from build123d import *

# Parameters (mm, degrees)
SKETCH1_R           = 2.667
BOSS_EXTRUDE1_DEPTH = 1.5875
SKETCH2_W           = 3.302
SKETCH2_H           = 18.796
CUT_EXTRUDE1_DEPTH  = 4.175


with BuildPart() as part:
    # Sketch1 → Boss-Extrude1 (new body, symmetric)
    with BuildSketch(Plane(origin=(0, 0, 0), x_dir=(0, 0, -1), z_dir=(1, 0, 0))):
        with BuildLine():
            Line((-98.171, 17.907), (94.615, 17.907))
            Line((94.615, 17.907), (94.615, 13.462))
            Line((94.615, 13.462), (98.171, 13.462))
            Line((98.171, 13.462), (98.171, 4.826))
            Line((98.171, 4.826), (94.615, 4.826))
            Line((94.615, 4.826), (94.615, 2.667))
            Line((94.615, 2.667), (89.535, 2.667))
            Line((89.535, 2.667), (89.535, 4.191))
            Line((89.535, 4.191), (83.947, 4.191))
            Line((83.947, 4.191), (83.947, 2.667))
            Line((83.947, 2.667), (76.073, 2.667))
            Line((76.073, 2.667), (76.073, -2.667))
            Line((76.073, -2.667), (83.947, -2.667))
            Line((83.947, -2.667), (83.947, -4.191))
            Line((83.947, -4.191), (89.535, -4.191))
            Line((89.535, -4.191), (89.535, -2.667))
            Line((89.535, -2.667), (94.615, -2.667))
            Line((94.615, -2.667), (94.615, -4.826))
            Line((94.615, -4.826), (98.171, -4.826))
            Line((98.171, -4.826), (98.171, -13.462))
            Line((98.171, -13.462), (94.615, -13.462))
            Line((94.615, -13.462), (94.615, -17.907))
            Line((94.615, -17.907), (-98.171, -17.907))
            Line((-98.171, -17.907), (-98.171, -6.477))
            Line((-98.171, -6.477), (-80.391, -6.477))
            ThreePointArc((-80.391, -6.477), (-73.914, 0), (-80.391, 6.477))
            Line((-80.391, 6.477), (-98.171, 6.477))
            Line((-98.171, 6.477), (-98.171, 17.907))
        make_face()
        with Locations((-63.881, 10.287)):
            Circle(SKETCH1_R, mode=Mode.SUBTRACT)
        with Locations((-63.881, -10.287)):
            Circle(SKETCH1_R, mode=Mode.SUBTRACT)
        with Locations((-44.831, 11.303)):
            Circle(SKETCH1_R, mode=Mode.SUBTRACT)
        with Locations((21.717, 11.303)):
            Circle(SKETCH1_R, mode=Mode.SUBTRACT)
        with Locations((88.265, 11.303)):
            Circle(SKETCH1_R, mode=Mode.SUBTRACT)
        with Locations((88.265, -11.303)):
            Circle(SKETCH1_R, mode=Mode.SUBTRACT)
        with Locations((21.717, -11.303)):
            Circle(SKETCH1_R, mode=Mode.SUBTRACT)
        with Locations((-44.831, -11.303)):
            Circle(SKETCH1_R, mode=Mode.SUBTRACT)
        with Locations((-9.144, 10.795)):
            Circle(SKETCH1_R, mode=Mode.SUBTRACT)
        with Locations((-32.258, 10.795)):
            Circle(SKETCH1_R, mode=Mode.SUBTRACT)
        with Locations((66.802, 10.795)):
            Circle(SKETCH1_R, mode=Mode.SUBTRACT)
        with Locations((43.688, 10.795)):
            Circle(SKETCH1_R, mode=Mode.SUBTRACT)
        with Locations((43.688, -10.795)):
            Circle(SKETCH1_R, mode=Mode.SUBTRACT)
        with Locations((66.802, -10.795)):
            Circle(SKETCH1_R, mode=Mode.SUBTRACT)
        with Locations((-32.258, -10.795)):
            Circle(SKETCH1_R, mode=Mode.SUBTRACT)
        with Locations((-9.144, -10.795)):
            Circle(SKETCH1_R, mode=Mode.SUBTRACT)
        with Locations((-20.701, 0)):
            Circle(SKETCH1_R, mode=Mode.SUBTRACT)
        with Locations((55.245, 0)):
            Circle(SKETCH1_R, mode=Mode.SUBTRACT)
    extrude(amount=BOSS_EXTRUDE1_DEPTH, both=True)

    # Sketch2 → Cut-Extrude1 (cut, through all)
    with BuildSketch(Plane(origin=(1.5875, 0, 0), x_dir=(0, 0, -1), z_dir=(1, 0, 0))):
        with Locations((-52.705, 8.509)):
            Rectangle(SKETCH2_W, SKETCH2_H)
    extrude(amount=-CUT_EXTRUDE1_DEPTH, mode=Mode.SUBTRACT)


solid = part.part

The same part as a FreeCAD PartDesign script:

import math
import FreeCAD as App
import Part
import Sketcher
Q = App.Units.Quantity

doc = App.newDocument("Part")
body = doc.addObject("PartDesign::Body", "Body")

# Sketch on YZ plane
sketch1 = body.newObject("Sketcher::SketchObject", "Sketch")
sketch1.AttachmentSupport = (doc.getObject("YZ_Plane"), [""])
sketch1.MapMode = "FlatFace"
sketch1.addGeometry(Part.LineSegment(App.Vector(17.9, -94.6, 0), App.Vector(17.9, 98.2, 0)), False)
sketch1.addGeometry(Part.LineSegment(App.Vector(17.9, 98.2, 0), App.Vector(6.5, 98.2, 0)), False)
sketch1.addGeometry(Part.LineSegment(App.Vector(6.5, 98.2, 0), App.Vector(6.5, 80.4, 0)), False)
sketch1.addGeometry(Part.ArcOfCircle(Part.Circle(App.Vector(0, 80.4, 0), App.Vector(0, 0, 1), 6.5), math.radians(180), math.radians(360)), False)
sketch1.addGeometry(Part.LineSegment(App.Vector(-6.5, 80.4, 0), App.Vector(-6.5, 98.2, 0)), False)
sketch1.addGeometry(Part.LineSegment(App.Vector(-6.5, 98.2, 0), App.Vector(-17.9, 98.2, 0)), False)
sketch1.addGeometry(Part.LineSegment(App.Vector(-17.9, 98.2, 0), App.Vector(-17.9, -94.6, 0)), False)
sketch1.addGeometry(Part.LineSegment(App.Vector(-17.9, -94.6, 0), App.Vector(-13.5, -94.6, 0)), False)
sketch1.addGeometry(Part.LineSegment(App.Vector(-13.5, -94.6, 0), App.Vector(-13.5, -98.2, 0)), False)
sketch1.addGeometry(Part.LineSegment(App.Vector(-13.5, -98.2, 0), App.Vector(-4.8, -98.2, 0)), False)
sketch1.addGeometry(Part.LineSegment(App.Vector(-4.8, -98.2, 0), App.Vector(-4.8, -94.6, 0)), False)
sketch1.addGeometry(Part.LineSegment(App.Vector(-4.8, -94.6, 0), App.Vector(-2.7, -94.6, 0)), False)
sketch1.addGeometry(Part.LineSegment(App.Vector(-2.7, -94.6, 0), App.Vector(-2.7, -89.5, 0)), False)
sketch1.addGeometry(Part.LineSegment(App.Vector(-2.7, -89.5, 0), App.Vector(-4.2, -89.5, 0)), False)
sketch1.addGeometry(Part.LineSegment(App.Vector(-4.2, -89.5, 0), App.Vector(-4.2, -83.9, 0)), False)
sketch1.addGeometry(Part.LineSegment(App.Vector(-4.2, -83.9, 0), App.Vector(-2.7, -83.9, 0)), False)
sketch1.addGeometry(Part.LineSegment(App.Vector(-2.7, -83.9, 0), App.Vector(-2.7, -76.1, 0)), False)
sketch1.addGeometry(Part.LineSegment(App.Vector(-2.7, -76.1, 0), App.Vector(2.7, -76.1, 0)), False)
sketch1.addGeometry(Part.LineSegment(App.Vector(2.7, -76.1, 0), App.Vector(2.7, -83.9, 0)), False)
sketch1.addGeometry(Part.LineSegment(App.Vector(2.7, -83.9, 0), App.Vector(4.2, -83.9, 0)), False)
sketch1.addGeometry(Part.LineSegment(App.Vector(4.2, -83.9, 0), App.Vector(4.2, -89.5, 0)), False)
sketch1.addGeometry(Part.LineSegment(App.Vector(4.2, -89.5, 0), App.Vector(2.7, -89.5, 0)), False)
sketch1.addGeometry(Part.LineSegment(App.Vector(2.7, -89.5, 0), App.Vector(2.7, -94.6, 0)), False)
sketch1.addGeometry(Part.LineSegment(App.Vector(2.7, -94.6, 0), App.Vector(4.8, -94.6, 0)), False)
sketch1.addGeometry(Part.LineSegment(App.Vector(4.8, -94.6, 0), App.Vector(4.8, -98.2, 0)), False)
sketch1.addGeometry(Part.LineSegment(App.Vector(4.8, -98.2, 0), App.Vector(13.5, -98.2, 0)), False)
sketch1.addGeometry(Part.LineSegment(App.Vector(13.5, -98.2, 0), App.Vector(13.5, -94.6, 0)), False)
sketch1.addGeometry(Part.LineSegment(App.Vector(13.5, -94.6, 0), App.Vector(17.9, -94.6, 0)), False)
sketch1.addGeometry(Part.Circle(App.Vector(-11.3, -88.3, 0), App.Vector(0, 0, 1), 2.7), False)
sketch1.addGeometry(Part.Circle(App.Vector(-10.8, -66.8, 0), App.Vector(0, 0, 1), 2.7), False)
sketch1.addGeometry(Part.Circle(App.Vector(-10.8, -43.7, 0), App.Vector(0, 0, 1), 2.7), False)
sketch1.addGeometry(Part.Circle(App.Vector(-11.3, -21.7, 0), App.Vector(0, 0, 1), 2.7), False)
sketch1.addGeometry(Part.Circle(App.Vector(-10.8, 9.1, 0), App.Vector(0, 0, 1), 2.7), False)
sketch1.addGeometry(Part.Circle(App.Vector(-10.8, 32.3, 0), App.Vector(0, 0, 1), 2.7), False)
sketch1.addGeometry(Part.Circle(App.Vector(-11.3, 44.8, 0), App.Vector(0, 0, 1), 2.7), False)
sketch1.addGeometry(Part.Circle(App.Vector(-10.3, 63.9, 0), App.Vector(0, 0, 1), 2.7), False)
sketch1.addGeometry(Part.Circle(App.Vector(0, -55.2, 0), App.Vector(0, 0, 1), 2.7), False)
sketch1.addGeometry(Part.Circle(App.Vector(11.3, -88.3, 0), App.Vector(0, 0, 1), 2.7), False)
sketch1.addGeometry(Part.Circle(App.Vector(10.8, -66.8, 0), App.Vector(0, 0, 1), 2.7), False)
sketch1.addGeometry(Part.Circle(App.Vector(10.8, -43.7, 0), App.Vector(0, 0, 1), 2.7), False)
sketch1.addGeometry(Part.Circle(App.Vector(11.3, -21.7, 0), App.Vector(0, 0, 1), 2.7), False)
sketch1.addGeometry(Part.Circle(App.Vector(0, 20.7, 0), App.Vector(0, 0, 1), 2.7), False)
sketch1.addGeometry(Part.Circle(App.Vector(10.8, 9.1, 0), App.Vector(0, 0, 1), 2.7), False)
sketch1.addGeometry(Part.Circle(App.Vector(10.3, 63.9, 0), App.Vector(0, 0, 1), 2.7), False)
sketch1.addGeometry(Part.Circle(App.Vector(10.8, 32.3, 0), App.Vector(0, 0, 1), 2.7), False)
sketch1.addGeometry(Part.Circle(App.Vector(11.3, 44.8, 0), App.Vector(0, 0, 1), 2.7), False)
sketch1.addConstraint(Sketcher.Constraint("Coincident", 0, 2, 1, 1))
sketch1.addConstraint(Sketcher.Constraint("Coincident", 1, 2, 2, 1))
sketch1.addConstraint(Sketcher.Constraint("Tangent", 2, 2, 3, 2))
sketch1.addConstraint(Sketcher.Constraint("Tangent", 3, 1, 4, 1))
sketch1.addConstraint(Sketcher.Constraint("Coincident", 4, 2, 5, 1))
sketch1.addConstraint(Sketcher.Constraint("Coincident", 5, 2, 6, 1))
sketch1.addConstraint(Sketcher.Constraint("Coincident", 6, 2, 7, 1))
sketch1.addConstraint(Sketcher.Constraint("Coincident", 7, 2, 8, 1))
sketch1.addConstraint(Sketcher.Constraint("Coincident", 8, 2, 9, 1))
sketch1.addConstraint(Sketcher.Constraint("Coincident", 9, 2, 10, 1))
sketch1.addConstraint(Sketcher.Constraint("Coincident", 10, 2, 11, 1))
sketch1.addConstraint(Sketcher.Constraint("Coincident", 11, 2, 12, 1))
sketch1.addConstraint(Sketcher.Constraint("Coincident", 12, 2, 13, 1))
sketch1.addConstraint(Sketcher.Constraint("Coincident", 13, 2, 14, 1))
sketch1.addConstraint(Sketcher.Constraint("Coincident", 14, 2, 15, 1))
sketch1.addConstraint(Sketcher.Constraint("Coincident", 15, 2, 16, 1))
sketch1.addConstraint(Sketcher.Constraint("Coincident", 16, 2, 17, 1))
sketch1.addConstraint(Sketcher.Constraint("Coincident", 17, 2, 18, 1))
sketch1.addConstraint(Sketcher.Constraint("Coincident", 18, 2, 19, 1))
sketch1.addConstraint(Sketcher.Constraint("Coincident", 19, 2, 20, 1))
sketch1.addConstraint(Sketcher.Constraint("Coincident", 20, 2, 21, 1))
sketch1.addConstraint(Sketcher.Constraint("Coincident", 21, 2, 22, 1))
sketch1.addConstraint(Sketcher.Constraint("Coincident", 22, 2, 23, 1))
sketch1.addConstraint(Sketcher.Constraint("Coincident", 23, 2, 24, 1))
sketch1.addConstraint(Sketcher.Constraint("Coincident", 24, 2, 25, 1))
sketch1.addConstraint(Sketcher.Constraint("Coincident", 25, 2, 26, 1))
sketch1.addConstraint(Sketcher.Constraint("Coincident", 26, 2, 27, 1))
sketch1.addConstraint(Sketcher.Constraint("Coincident", 27, 2, 0, 1))
sketch1.addConstraint(Sketcher.Constraint("Vertical", 0))
sketch1.addConstraint(Sketcher.Constraint("Horizontal", 1))
sketch1.addConstraint(Sketcher.Constraint("Vertical", 2))
sketch1.addConstraint(Sketcher.Constraint("Vertical", 4))
sketch1.addConstraint(Sketcher.Constraint("Horizontal", 5))
sketch1.addConstraint(Sketcher.Constraint("Vertical", 6))
sketch1.addConstraint(Sketcher.Constraint("Horizontal", 7))
sketch1.addConstraint(Sketcher.Constraint("Vertical", 8))
sketch1.addConstraint(Sketcher.Constraint("Horizontal", 9))
sketch1.addConstraint(Sketcher.Constraint("Vertical", 10))
sketch1.addConstraint(Sketcher.Constraint("Horizontal", 11))
sketch1.addConstraint(Sketcher.Constraint("Vertical", 12))
sketch1.addConstraint(Sketcher.Constraint("Horizontal", 13))
sketch1.addConstraint(Sketcher.Constraint("Vertical", 14))
sketch1.addConstraint(Sketcher.Constraint("Horizontal", 15))
sketch1.addConstraint(Sketcher.Constraint("Vertical", 16))
sketch1.addConstraint(Sketcher.Constraint("Horizontal", 17))
sketch1.addConstraint(Sketcher.Constraint("Vertical", 18))
sketch1.addConstraint(Sketcher.Constraint("Horizontal", 19))
sketch1.addConstraint(Sketcher.Constraint("Vertical", 20))
sketch1.addConstraint(Sketcher.Constraint("Horizontal", 21))
sketch1.addConstraint(Sketcher.Constraint("Vertical", 22))
sketch1.addConstraint(Sketcher.Constraint("Horizontal", 23))
sketch1.addConstraint(Sketcher.Constraint("Vertical", 24))
sketch1.addConstraint(Sketcher.Constraint("Horizontal", 25))
sketch1.addConstraint(Sketcher.Constraint("Vertical", 26))
sketch1.addConstraint(Sketcher.Constraint("Horizontal", 27))
sketch1.addConstraint(Sketcher.Constraint("Equal", 28, 29))
sketch1.addConstraint(Sketcher.Constraint("Equal", 29, 30))
sketch1.addConstraint(Sketcher.Constraint("Equal", 30, 31))
sketch1.addConstraint(Sketcher.Constraint("Equal", 31, 32))
sketch1.addConstraint(Sketcher.Constraint("Equal", 32, 33))
sketch1.addConstraint(Sketcher.Constraint("Equal", 33, 34))
sketch1.addConstraint(Sketcher.Constraint("Equal", 34, 35))
sketch1.addConstraint(Sketcher.Constraint("Equal", 35, 36))
sketch1.addConstraint(Sketcher.Constraint("Equal", 36, 37))
sketch1.addConstraint(Sketcher.Constraint("Equal", 37, 38))
sketch1.addConstraint(Sketcher.Constraint("Equal", 38, 39))
sketch1.addConstraint(Sketcher.Constraint("Equal", 39, 40))
sketch1.addConstraint(Sketcher.Constraint("Equal", 40, 41))
sketch1.addConstraint(Sketcher.Constraint("Equal", 41, 42))
sketch1.addConstraint(Sketcher.Constraint("Equal", 42, 43))
sketch1.addConstraint(Sketcher.Constraint("Equal", 43, 44))
sketch1.addConstraint(Sketcher.Constraint("Equal", 44, 45))
sketch1.addConstraint(Sketcher.Constraint("Symmetric", 28, 3, 37, 3, -2))
sketch1.addConstraint(Sketcher.Constraint("Symmetric", 29, 3, 38, 3, -2))
sketch1.addConstraint(Sketcher.Constraint("Symmetric", 30, 3, 39, 3, -2))
sketch1.addConstraint(Sketcher.Constraint("Symmetric", 31, 3, 40, 3, -2))
sketch1.addConstraint(Sketcher.Constraint("Symmetric", 32, 3, 42, 3, -2))
sketch1.addConstraint(Sketcher.Constraint("Symmetric", 35, 3, 43, 3, -2))
sketch1.addConstraint(Sketcher.Constraint("Symmetric", 33, 3, 44, 3, -2))
sketch1.addConstraint(Sketcher.Constraint("Symmetric", 34, 3, 45, 3, -2))
sketch1.addConstraint(Sketcher.Constraint("Symmetric", 1, 2, 4, 2, -2))
sketch1.addConstraint(Sketcher.Constraint("Symmetric", 15, 2, 18, 2, -2))
sketch1.addConstraint(Sketcher.Constraint("Symmetric", 13, 2, 20, 2, -2))
sketch1.addConstraint(Sketcher.Constraint("Symmetric", 11, 2, 22, 2, -2))
sketch1.addConstraint(Sketcher.Constraint("Symmetric", 9, 2, 24, 2, -2))
sketch1.addConstraint(Sketcher.Constraint("Symmetric", 7, 2, 26, 2, -2))
sketch1.addConstraint(Sketcher.Constraint("PointOnObject", 36, 3, -2))
sketch1.addConstraint(Sketcher.Constraint("PointOnObject", 41, 3, -2))
sketch1.addConstraint(Sketcher.Constraint("Horizontal", 7, 2, 10, 2))
sketch1.addConstraint(Sketcher.Constraint("Vertical", 29, 3, 30, 3))
sketch1.addConstraint(Sketcher.Constraint("Vertical", 28, 3, 31, 3))
sketch1.addConstraint(Sketcher.Constraint("Vertical", 30, 3, 32, 3))
sketch1.addConstraint(Sketcher.Constraint("Vertical", 32, 3, 33, 3))
sketch1.addConstraint(Sketcher.Constraint("Vertical", 31, 3, 34, 3))
sketch1.addConstraint(Sketcher.Constraint("Vertical", 12, 2, 15, 2))
sketch1.addConstraint(Sketcher.Constraint("Equal", 1, 5))
sketch1.addConstraint(Sketcher.Constraint("Diameter", 28, Q("0.21 in")))
sketch1.addConstraint(Sketcher.Constraint("DistanceY", 2, 2, 2, 1, Q("0.7 in")))
sketch1.addConstraint(Sketcher.Constraint("DistanceY", 12, 1, 12, 2, Q("0.2 in")))
sketch1.addConstraint(Sketcher.Constraint("Radius", 3, Q("0.255 in")))
sketch1.addConstraint(Sketcher.Constraint("DistanceX", 1, 2, 1, 1, Q("0.45 in")))
sketch1.addConstraint(Sketcher.Constraint("DistanceX", 9, 1, 9, 2, Q("0.34 in")))
sketch1.addConstraint(Sketcher.Constraint("DistanceX", 13, 2, 13, 1, Q("0.06 in")))
sketch1.addConstraint(Sketcher.Constraint("DistanceX", 17, 1, 17, 2, Q("0.21 in")))
sketch1.addConstraint(Sketcher.Constraint("DistanceY", 0, 1, 0, 2, Q("7.59 in")))
sketch1.addConstraint(Sketcher.Constraint("DistanceY", 8, 2, 8, 1, Q("0.14 in")))
sketch1.addConstraint(Sketcher.Constraint("DistanceY", 14, 1, 14, 2, Q("0.22 in")))
sketch1.addConstraint(Sketcher.Constraint("DistanceY", 16, 1, 16, 2, Q("0.31 in")))
sketch1.addConstraint(Sketcher.Constraint("DistanceY", 29, 3, 33, 3, Q("3.9 in")))
sketch1.addConstraint(Sketcher.Constraint("DistanceY", 34, 3, 3, 3, Q("1.4 in")))
sketch1.addConstraint(Sketcher.Constraint("DistanceY", 28, 3, 36, 3, Q("1.3 in")))
sketch1.addConstraint(Sketcher.Constraint("DistanceY", 41, 3, 43, 3, Q("1.7 in")))
sketch1.addConstraint(Sketcher.Constraint("DistanceX", 43, 3, 0, 2, Q("0.3 in")))
sketch1.addConstraint(Sketcher.Constraint("DistanceX", 7, 1, 7, 2, Q("0.175 in")))
sketch1.addConstraint(Sketcher.Constraint("DistanceY", 29, 3, -1, 1, Q("2.63 in")))
sketch1.addConstraint(Sketcher.Constraint("DistanceY", 30, 3, -1, 1, Q("1.72 in")))
sketch1.addConstraint(Sketcher.Constraint("DistanceY", -1, 1, 32, 3, Q("0.36 in")))
sketch1.addConstraint(Sketcher.Constraint("DistanceY", 28, 3, 3, 3, Q("6.64 in")))
sketch1.addConstraint(Sketcher.Constraint("DistanceX", 28, 3, 29, 3, Q("0.02 in")))
sketch1.addConstraint(Sketcher.Constraint("DistanceY", 28, 3, 31, 3, Q("2.62 in")))
sketch1.addConstraint(Sketcher.Constraint("DistanceX", 34, 3, 35, 3, Q("0.04 in")))
sketch1.addConstraint(Sketcher.Constraint("DistanceY", 34, 3, 35, 3, Q("0.75 in")))
sketch1.addConstraint(Sketcher.Constraint("DistanceY", -1, 1, 3, 3, Q("3.165 in")))
pad1 = body.newObject("PartDesign::Pad", "Pad")
pad1.Profile = sketch1
pad1.Length = Q("0.125 in")
pad1.Midplane = True

# Sketch on YZ plane
sketch2 = body.newObject("Sketcher::SketchObject", "Sketch001")
sketch2.AttachmentSupport = (doc.getObject("YZ_Plane"), [""])
sketch2.MapMode = "FlatFace"
sketch2.AttachmentOffset = App.Placement(App.Vector(0, 0, 0.0625 * 25.4), App.Rotation())
sketch2.addGeometry(Part.LineSegment(App.Vector(17.9, 54.4, 0), App.Vector(-0.9, 54.4, 0)), False)
sketch2.addGeometry(Part.LineSegment(App.Vector(-0.9, 54.4, 0), App.Vector(-0.9, 51.1, 0)), False)
sketch2.addGeometry(Part.LineSegment(App.Vector(-0.9, 51.1, 0), App.Vector(17.9, 51.1, 0)), False)
sketch2.addGeometry(Part.LineSegment(App.Vector(17.9, 51.1, 0), App.Vector(17.9, 54.4, 0)), False)
sketch2.addConstraint(Sketcher.Constraint("Coincident", 0, 2, 1, 1))
sketch2.addConstraint(Sketcher.Constraint("Coincident", 1, 2, 2, 1))
sketch2.addConstraint(Sketcher.Constraint("Coincident", 2, 2, 3, 1))
sketch2.addConstraint(Sketcher.Constraint("Coincident", 3, 2, 0, 1))
sketch2.addConstraint(Sketcher.Constraint("Horizontal", 0))
sketch2.addConstraint(Sketcher.Constraint("Vertical", 1))
sketch2.addConstraint(Sketcher.Constraint("Horizontal", 2))
sketch2.addConstraint(Sketcher.Constraint("Vertical", 3))
sketch2.addConstraint(Sketcher.Constraint("DistanceX", 0, 2, 0, 1, Q("0.74 in")))
sketch2.addConstraint(Sketcher.Constraint("DistanceY", 1, 2, 1, 1, Q("0.13 in")))
sketch2.addConstraint(Sketcher.Constraint("DistanceY", -1, 1, 0, 2, Q("2.14 in")))
sketch2.addConstraint(Sketcher.Constraint("DistanceX", 0, 2, -1, 1, Q("0.035 in")))
pocket1 = body.newObject("PartDesign::Pocket", "Pocket")
pocket1.Profile = sketch2
pocket1.Type = "ThroughAll"

doc.recompute()
